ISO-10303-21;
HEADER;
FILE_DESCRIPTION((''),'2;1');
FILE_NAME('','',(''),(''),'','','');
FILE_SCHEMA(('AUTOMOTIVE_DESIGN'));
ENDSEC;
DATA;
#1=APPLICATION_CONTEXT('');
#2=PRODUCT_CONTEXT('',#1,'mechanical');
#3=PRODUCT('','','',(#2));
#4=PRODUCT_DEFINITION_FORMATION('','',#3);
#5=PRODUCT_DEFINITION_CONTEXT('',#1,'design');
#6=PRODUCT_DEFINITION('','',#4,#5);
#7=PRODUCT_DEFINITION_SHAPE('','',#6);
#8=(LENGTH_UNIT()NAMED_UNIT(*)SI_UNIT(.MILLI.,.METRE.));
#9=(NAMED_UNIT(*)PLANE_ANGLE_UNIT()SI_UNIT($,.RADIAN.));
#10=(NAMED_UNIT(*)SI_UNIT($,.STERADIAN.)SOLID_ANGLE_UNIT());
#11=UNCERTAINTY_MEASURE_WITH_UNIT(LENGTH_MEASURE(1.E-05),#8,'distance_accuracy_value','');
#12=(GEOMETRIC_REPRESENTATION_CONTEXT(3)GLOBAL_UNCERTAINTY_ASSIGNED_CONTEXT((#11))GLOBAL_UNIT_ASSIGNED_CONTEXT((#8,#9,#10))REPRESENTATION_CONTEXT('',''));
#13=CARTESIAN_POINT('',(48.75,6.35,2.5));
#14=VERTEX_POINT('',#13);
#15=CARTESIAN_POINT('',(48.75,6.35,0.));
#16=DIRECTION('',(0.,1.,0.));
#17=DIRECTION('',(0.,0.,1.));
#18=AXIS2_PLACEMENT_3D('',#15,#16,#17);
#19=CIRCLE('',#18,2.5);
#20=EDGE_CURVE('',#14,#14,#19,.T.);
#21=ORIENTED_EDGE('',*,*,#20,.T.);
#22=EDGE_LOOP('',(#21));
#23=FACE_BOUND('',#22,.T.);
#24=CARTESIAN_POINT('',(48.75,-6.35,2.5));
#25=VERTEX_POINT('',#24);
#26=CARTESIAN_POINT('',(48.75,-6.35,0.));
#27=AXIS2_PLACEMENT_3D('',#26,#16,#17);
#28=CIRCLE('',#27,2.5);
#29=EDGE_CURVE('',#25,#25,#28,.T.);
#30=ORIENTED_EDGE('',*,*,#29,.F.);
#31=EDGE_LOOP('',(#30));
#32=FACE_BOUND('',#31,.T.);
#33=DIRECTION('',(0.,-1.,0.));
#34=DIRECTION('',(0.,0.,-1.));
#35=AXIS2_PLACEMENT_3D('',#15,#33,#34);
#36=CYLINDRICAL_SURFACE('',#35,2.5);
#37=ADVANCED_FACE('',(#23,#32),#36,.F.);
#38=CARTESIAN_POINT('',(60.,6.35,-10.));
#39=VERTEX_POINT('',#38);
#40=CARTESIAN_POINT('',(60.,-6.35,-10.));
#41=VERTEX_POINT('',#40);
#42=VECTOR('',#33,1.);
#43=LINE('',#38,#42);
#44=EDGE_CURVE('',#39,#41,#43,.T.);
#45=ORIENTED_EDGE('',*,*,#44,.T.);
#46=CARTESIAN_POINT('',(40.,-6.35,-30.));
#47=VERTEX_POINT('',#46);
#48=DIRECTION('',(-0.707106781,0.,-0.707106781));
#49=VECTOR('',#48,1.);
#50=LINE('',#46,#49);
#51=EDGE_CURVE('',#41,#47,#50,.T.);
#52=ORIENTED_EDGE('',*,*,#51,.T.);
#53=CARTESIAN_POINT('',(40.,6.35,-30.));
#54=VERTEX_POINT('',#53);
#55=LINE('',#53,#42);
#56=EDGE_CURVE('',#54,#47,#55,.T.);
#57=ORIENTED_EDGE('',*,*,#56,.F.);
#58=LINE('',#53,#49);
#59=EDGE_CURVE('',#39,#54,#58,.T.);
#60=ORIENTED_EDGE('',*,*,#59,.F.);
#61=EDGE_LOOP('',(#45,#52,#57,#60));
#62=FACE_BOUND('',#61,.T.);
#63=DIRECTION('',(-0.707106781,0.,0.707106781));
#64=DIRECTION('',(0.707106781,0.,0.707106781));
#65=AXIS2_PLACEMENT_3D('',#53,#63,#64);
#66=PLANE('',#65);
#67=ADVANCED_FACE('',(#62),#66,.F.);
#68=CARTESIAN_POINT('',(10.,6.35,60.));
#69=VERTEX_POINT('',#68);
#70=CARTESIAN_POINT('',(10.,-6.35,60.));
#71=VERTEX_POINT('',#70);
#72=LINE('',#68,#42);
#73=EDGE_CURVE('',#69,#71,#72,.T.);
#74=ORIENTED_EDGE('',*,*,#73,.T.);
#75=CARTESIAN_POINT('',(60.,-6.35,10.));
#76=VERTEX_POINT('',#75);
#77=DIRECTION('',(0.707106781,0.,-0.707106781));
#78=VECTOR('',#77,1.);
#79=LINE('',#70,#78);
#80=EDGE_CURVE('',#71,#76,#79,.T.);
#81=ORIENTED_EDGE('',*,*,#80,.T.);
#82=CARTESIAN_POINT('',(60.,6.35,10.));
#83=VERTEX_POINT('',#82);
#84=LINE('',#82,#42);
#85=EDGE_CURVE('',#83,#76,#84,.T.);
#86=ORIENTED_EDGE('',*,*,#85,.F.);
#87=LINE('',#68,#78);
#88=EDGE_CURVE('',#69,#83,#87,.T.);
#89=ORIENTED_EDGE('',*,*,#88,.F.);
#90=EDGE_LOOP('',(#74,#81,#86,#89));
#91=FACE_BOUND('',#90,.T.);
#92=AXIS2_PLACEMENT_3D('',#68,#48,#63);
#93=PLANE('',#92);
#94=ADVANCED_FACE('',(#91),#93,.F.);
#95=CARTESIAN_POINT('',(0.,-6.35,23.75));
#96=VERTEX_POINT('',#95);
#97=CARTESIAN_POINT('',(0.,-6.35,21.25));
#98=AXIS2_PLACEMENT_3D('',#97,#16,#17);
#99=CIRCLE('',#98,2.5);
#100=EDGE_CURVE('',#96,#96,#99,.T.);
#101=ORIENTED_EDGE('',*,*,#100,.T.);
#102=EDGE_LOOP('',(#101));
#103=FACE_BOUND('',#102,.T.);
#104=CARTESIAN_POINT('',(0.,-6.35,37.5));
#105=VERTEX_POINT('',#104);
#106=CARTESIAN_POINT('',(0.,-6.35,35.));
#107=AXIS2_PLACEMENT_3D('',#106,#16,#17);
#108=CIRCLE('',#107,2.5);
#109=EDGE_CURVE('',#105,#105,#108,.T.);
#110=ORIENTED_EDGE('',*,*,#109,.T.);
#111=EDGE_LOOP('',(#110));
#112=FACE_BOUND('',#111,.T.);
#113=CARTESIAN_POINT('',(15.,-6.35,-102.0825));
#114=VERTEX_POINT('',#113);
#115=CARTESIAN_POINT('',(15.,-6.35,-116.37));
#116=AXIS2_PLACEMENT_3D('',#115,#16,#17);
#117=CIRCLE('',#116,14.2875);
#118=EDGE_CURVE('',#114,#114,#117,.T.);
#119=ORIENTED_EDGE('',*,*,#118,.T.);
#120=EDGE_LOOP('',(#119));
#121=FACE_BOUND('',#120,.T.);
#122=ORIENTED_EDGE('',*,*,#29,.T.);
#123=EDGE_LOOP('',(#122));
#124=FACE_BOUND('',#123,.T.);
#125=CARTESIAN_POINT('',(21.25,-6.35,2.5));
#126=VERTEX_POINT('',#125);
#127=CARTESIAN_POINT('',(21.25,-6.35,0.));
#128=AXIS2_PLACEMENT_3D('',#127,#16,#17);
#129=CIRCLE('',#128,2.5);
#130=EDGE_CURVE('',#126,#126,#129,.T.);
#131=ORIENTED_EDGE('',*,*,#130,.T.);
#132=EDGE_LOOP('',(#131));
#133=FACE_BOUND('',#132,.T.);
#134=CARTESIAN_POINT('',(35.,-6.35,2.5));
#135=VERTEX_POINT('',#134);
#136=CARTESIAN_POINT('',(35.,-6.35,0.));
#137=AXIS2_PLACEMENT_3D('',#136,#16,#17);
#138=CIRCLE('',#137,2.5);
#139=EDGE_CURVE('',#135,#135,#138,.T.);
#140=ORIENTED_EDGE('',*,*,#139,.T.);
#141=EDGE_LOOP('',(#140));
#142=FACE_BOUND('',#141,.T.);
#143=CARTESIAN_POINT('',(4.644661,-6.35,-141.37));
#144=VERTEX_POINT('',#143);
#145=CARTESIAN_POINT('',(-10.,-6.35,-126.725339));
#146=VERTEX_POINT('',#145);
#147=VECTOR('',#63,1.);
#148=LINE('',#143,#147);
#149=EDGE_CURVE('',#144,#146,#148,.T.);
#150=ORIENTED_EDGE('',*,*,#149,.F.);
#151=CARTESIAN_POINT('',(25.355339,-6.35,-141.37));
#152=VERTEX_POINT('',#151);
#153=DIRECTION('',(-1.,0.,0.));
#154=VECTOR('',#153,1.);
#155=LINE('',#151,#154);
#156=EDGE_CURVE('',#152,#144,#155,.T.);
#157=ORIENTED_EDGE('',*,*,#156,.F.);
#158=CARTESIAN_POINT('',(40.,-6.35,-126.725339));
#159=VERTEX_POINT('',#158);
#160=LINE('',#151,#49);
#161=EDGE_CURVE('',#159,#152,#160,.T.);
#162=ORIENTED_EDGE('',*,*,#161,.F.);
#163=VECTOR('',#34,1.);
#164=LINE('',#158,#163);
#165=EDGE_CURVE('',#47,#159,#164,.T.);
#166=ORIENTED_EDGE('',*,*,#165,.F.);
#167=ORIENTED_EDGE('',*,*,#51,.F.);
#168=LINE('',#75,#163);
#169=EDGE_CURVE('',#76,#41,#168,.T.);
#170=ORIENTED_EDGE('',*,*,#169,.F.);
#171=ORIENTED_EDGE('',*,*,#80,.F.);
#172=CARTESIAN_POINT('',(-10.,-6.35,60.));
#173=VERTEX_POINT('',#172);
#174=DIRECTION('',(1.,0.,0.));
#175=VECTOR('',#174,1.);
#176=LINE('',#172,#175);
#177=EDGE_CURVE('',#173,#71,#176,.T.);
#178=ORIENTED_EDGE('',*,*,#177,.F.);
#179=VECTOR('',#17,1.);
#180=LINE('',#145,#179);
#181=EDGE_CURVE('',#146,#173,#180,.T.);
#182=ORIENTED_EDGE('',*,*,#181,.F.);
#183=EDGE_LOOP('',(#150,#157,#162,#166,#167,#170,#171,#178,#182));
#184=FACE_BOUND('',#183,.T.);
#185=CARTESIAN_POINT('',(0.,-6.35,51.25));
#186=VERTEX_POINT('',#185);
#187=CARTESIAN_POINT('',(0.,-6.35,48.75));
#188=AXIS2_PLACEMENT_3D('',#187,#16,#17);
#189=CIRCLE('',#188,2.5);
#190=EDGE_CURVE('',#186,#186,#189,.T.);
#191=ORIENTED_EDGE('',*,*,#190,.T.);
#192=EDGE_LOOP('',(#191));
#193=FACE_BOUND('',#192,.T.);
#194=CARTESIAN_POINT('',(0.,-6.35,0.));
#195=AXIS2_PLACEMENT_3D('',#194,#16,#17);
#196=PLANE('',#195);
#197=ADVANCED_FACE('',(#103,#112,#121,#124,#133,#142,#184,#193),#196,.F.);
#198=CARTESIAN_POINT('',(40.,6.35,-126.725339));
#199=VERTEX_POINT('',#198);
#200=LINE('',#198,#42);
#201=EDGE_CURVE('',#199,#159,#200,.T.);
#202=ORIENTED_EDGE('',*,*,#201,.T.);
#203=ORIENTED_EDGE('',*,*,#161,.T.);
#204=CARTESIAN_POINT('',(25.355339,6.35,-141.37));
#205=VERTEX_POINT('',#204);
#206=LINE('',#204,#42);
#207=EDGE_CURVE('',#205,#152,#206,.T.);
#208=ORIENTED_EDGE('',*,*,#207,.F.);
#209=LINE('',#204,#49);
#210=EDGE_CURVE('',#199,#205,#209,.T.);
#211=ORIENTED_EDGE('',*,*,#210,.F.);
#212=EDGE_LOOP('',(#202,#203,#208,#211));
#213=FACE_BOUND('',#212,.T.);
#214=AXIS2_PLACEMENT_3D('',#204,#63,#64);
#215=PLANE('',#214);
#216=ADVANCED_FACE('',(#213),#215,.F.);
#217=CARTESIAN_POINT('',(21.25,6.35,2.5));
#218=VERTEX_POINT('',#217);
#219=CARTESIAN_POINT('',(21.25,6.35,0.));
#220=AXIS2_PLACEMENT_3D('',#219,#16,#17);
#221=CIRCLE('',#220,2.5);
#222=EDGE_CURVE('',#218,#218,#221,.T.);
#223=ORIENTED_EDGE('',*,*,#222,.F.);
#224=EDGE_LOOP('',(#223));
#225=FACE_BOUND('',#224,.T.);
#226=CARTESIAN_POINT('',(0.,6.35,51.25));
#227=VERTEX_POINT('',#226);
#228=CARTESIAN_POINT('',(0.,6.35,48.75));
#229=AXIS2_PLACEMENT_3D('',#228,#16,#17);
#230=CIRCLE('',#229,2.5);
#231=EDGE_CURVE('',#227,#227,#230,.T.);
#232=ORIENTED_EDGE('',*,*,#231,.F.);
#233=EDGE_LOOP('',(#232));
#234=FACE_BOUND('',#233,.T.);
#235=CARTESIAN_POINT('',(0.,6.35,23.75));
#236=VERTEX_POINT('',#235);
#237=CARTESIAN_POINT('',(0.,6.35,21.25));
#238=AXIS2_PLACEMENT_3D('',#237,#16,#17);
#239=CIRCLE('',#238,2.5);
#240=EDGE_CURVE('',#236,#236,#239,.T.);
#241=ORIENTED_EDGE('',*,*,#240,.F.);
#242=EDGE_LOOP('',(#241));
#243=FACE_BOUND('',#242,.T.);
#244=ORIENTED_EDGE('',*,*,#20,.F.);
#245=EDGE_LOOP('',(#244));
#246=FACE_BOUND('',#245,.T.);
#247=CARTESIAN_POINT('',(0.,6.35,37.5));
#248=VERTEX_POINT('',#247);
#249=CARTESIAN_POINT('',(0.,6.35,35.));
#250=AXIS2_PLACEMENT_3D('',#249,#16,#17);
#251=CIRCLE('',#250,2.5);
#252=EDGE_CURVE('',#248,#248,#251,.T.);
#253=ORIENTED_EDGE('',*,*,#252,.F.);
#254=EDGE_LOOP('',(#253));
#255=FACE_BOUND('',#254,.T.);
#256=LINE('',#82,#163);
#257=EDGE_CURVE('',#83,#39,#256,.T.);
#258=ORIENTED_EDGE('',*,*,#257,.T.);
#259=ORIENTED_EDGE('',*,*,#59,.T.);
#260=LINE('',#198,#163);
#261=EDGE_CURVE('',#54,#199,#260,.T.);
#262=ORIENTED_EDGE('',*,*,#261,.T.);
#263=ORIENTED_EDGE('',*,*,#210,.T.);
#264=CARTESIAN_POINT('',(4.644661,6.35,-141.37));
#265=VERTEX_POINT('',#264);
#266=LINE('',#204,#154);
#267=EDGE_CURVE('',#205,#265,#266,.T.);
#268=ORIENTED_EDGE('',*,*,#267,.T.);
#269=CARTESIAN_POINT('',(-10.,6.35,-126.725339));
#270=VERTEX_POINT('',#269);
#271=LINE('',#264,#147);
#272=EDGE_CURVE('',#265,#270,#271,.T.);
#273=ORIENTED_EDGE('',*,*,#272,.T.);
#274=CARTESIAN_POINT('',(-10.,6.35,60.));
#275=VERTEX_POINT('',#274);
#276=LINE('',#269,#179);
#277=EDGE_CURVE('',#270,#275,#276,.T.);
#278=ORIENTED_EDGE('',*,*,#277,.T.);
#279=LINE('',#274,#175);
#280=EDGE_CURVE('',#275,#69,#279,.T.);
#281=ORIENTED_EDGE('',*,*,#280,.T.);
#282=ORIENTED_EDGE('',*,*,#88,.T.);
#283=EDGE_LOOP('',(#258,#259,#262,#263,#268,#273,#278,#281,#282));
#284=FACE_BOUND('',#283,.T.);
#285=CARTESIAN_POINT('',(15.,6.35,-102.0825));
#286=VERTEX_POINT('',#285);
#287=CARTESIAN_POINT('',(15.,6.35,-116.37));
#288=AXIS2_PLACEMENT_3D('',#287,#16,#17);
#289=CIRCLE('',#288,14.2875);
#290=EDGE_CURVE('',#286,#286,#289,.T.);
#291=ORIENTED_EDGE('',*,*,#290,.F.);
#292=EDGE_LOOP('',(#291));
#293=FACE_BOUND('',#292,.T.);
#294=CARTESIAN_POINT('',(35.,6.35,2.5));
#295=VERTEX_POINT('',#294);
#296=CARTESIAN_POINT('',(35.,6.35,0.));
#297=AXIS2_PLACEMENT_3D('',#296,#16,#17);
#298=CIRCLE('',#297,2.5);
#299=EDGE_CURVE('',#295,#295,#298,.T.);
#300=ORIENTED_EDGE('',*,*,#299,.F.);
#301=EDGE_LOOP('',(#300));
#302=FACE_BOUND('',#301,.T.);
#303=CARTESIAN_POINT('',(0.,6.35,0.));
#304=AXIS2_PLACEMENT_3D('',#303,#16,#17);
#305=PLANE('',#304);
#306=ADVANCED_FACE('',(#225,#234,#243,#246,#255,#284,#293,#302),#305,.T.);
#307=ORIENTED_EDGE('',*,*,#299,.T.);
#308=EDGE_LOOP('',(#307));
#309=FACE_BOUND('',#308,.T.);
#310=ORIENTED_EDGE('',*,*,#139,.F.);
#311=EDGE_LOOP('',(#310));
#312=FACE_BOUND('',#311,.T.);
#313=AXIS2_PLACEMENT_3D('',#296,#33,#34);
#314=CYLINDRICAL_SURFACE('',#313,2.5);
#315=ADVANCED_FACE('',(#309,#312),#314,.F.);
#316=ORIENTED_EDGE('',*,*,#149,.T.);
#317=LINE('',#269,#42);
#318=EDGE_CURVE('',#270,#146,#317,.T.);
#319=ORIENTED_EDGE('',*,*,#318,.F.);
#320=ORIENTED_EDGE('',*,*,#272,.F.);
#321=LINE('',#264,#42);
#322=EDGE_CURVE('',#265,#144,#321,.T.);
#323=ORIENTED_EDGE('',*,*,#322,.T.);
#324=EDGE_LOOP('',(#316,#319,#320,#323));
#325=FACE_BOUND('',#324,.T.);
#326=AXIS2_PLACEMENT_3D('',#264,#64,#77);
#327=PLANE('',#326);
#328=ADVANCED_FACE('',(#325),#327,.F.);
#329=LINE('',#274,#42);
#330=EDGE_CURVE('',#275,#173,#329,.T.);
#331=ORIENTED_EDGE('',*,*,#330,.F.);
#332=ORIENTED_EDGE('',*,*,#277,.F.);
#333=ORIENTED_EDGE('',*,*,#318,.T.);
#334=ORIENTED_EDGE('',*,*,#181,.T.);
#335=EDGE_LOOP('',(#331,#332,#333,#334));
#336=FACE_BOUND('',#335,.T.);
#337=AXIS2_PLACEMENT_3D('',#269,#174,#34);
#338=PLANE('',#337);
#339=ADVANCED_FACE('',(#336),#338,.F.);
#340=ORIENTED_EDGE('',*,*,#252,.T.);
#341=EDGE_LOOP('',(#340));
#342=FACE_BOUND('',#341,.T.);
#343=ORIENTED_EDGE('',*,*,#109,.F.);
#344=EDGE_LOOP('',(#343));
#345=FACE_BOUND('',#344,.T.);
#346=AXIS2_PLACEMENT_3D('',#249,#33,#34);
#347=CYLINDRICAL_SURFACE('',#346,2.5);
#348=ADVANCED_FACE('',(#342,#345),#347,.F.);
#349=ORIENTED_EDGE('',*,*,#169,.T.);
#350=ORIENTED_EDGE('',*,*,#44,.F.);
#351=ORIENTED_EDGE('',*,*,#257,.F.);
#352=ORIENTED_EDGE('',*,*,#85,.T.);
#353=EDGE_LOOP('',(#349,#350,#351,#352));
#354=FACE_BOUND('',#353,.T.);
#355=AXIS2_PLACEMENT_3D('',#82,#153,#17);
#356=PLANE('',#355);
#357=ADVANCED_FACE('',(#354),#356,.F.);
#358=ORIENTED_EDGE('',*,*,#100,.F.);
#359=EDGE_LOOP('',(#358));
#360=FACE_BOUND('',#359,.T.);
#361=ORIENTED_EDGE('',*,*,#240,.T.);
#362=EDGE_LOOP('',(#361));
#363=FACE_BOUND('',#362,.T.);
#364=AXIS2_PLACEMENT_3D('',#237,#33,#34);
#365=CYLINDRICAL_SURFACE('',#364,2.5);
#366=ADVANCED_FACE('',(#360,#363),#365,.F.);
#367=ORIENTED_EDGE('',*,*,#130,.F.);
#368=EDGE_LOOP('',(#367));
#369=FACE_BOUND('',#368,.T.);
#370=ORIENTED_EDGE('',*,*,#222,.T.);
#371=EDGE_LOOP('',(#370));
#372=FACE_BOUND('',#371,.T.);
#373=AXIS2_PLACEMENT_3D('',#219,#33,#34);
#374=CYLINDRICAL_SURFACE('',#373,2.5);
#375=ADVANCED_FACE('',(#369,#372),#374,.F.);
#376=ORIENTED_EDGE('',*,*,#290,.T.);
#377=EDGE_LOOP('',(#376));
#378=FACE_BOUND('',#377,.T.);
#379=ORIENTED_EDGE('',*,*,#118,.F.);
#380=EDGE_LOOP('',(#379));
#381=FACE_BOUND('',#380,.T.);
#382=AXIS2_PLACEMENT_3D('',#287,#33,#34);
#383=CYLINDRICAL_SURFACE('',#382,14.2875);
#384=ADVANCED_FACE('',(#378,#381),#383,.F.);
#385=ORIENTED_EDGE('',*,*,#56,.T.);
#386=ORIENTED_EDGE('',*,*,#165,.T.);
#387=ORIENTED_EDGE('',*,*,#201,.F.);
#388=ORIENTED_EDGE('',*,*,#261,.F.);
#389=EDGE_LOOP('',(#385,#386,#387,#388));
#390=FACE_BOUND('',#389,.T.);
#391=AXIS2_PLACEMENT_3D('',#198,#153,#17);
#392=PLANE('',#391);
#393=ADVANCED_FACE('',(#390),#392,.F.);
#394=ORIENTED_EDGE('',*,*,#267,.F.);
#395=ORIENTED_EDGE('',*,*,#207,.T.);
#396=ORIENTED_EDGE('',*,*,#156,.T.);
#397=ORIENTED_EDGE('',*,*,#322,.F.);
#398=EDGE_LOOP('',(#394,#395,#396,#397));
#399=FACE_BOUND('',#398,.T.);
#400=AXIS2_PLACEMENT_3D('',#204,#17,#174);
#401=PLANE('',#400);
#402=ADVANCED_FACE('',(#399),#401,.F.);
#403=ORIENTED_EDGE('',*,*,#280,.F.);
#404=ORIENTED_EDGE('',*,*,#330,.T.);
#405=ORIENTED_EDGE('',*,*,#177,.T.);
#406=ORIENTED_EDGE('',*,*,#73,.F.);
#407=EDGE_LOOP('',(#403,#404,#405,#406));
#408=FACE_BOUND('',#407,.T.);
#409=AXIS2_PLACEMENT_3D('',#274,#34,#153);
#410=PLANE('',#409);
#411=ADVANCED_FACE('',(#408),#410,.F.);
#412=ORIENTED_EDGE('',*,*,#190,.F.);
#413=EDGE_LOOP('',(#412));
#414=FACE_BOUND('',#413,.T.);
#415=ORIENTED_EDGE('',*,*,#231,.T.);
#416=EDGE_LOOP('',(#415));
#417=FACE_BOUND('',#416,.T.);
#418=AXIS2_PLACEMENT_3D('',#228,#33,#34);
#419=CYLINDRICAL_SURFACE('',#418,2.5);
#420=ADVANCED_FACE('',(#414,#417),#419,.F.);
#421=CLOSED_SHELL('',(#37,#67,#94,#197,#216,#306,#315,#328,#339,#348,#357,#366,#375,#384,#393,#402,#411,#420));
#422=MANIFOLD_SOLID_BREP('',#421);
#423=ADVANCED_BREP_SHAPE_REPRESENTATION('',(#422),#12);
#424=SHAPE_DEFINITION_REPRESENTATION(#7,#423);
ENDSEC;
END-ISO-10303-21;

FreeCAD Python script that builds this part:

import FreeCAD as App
import Part
import Sketcher

V = App.Vector
Q = App.Units.Quantity

doc = App.newDocument("Part")
params = doc.addObject("Spreadsheet::Sheet", "Params")
for row, (alias, value) in enumerate([
    ("sketch1_diameter", "5 mm"),
    ("sketch1_width", "20 mm"),
    ("pad1_length", "12.7 mm"),
], start=1):
    params.set(f"A{row}", alias)
    params.set(f"B{row}", "=" + value)
    params.setAlias(f"B{row}", alias)

body = doc.addObject("PartDesign::Body", "Body")

# Sketch on XZ plane
sketch1 = body.newObject("Sketcher::SketchObject", "Sketch")
sketch1.AttachmentSupport = (doc.getObject("XZ_Plane"), [""])
sketch1.MapMode = "FlatFace"
sketch1.addGeometry([
    Part.LineSegment(V(-10, 60, 0), V(10, 60, 0)),  # 0
    Part.LineSegment(V(10, 60, 0), V(60, 10, 0)),  # 1
    Part.LineSegment(V(60, 10, 0), V(60, -10, 0)),  # 2
    Part.LineSegment(V(60, -10, 0), V(40, -30, 0)),  # 3
    Part.LineSegment(V(40, -30, 0), V(40, -126.7, 0)),  # 4
    Part.LineSegment(V(40, -126.7, 0), V(25.4, -141.4, 0)),  # 5
    Part.LineSegment(V(25.4, -141.4, 0), V(4.6, -141.4, 0)),  # 6
    Part.LineSegment(V(4.6, -141.4, 0), V(-10, -126.7, 0)),  # 7
    Part.LineSegment(V(-10, -126.7, 0), V(-10, 60, 0)),  # 8
    Part.Circle(V(0, 48.8, 0), V(0, 0, 1), 2.5),  # 9
    Part.Circle(V(0, 35, 0), V(0, 0, 1), 2.5),  # 10
    Part.Circle(V(0, 21.2, 0), V(0, 0, 1), 2.5),  # 11
    Part.Circle(V(21.2, 0, 0), V(0, 0, 1), 2.5),  # 12
    Part.Circle(V(35, 0, 0), V(0, 0, 1), 2.5),  # 13
    Part.Circle(V(48.8, 0, 0), V(0, 0, 1), 2.5),  # 14
    Part.Circle(V(15, -116.4, 0), V(0, 0, 1), 14.3),  # 15
], False)
sketch1.addConstraint([
    Sketcher.Constraint("Coincident", 0, 2, 1, 1),
    Sketcher.Constraint("Coincident", 1, 2, 2, 1),
    Sketcher.Constraint("Coincident", 2, 2, 3, 1),
    Sketcher.Constraint("Coincident", 3, 2, 4, 1),
    Sketcher.Constraint("Coincident", 4, 2, 5, 1),
    Sketcher.Constraint("Coincident", 5, 2, 6, 1),
    Sketcher.Constraint("Coincident", 6, 2, 7, 1),
    Sketcher.Constraint("Coincident", 7, 2, 8, 1),
    Sketcher.Constraint("Coincident", 8, 2, 0, 1),
    Sketcher.Constraint("Horizontal", 0),
    Sketcher.Constraint("Vertical", 2),
    Sketcher.Constraint("Vertical", 4),
    Sketcher.Constraint("Horizontal", 6),
    Sketcher.Constraint("Vertical", 8),
    Sketcher.Constraint("Equal", 9, 10),
    Sketcher.Constraint("Equal", 10, 11),
    Sketcher.Constraint("Equal", 11, 12),
    Sketcher.Constraint("Equal", 12, 13),
    Sketcher.Constraint("Equal", 13, 14),
    Sketcher.Constraint("PointOnObject", 9, 3, -2),
    Sketcher.Constraint("PointOnObject", 10, 3, -2),
    Sketcher.Constraint("PointOnObject", 11, 3, -2),
    Sketcher.Constraint("PointOnObject", 12, 3, -1),
    Sketcher.Constraint("PointOnObject", 13, 3, -1),
    Sketcher.Constraint("PointOnObject", 14, 3, -1),
    Sketcher.Constraint("Perpendicular", 1, 3),
    Sketcher.Constraint("Parallel", 3, 5),
    Sketcher.Constraint("Perpendicular", 5, 7),
    Sketcher.Constraint("Horizontal", 4, 2, 7, 2),
    Sketcher.Constraint("Equal", 0, 2),
    Sketcher.Constraint("Equal", 5, 7),
    Sketcher.Constraint("Diameter", 9, Q("5 mm")),
    Sketcher.Constraint("DistanceX", 0, 1, 0, 2, Q("20 mm")),
    Sketcher.Constraint("Diameter", 15, Q("28.575 mm")),
    Sketcher.Constraint("DistanceY", -1, 1, 10, 3, Q("35 mm")),
    Sketcher.Constraint("DistanceX", -1, 1, 13, 3, Q("35 mm")),
    Sketcher.Constraint("DistanceX", -1, 1, 15, 3, Q("15 mm")),
    Sketcher.Constraint("DistanceX", -1, 1, 0, 2, Q("10 mm")),
    Sketcher.Constraint("DistanceY", -1, 1, 0, 2, Q("60 mm")),
    Sketcher.Constraint("DistanceX", -1, 1, 1, 2, Q("60 mm")),
    Sketcher.Constraint("DistanceX", -1, 1, 3, 2, Q("40 mm")),
    Sketcher.Constraint("DistanceY", 5, 2, 15, 3, Q("25 mm")),
    Sketcher.Constraint("DistanceY", 11, 3, 9, 3, Q("27.5 mm")),
    Sketcher.Constraint("DistanceX", 12, 3, 14, 3, Q("27.5 mm")),
    Sketcher.Constraint("DistanceY", -1, 1, 9, 3, Q("48.75 mm")),
    Sketcher.Constraint("DistanceX", -1, 1, 12, 3, Q("21.25 mm")),
    Sketcher.Constraint("DistanceY", 15, 3, -1, 1, Q("116.37 mm")),
    Sketcher.Constraint("DistanceX", 6, 2, 6, 1, Q("20.710678 mm")),
])
sketch1.setExpression("Constraints[31]", "Params.sketch1_diameter")
sketch1.setExpression("Constraints[32]", "Params.sketch1_width")
pad1 = body.newObject("PartDesign::Pad", "Pad")
pad1.Profile = sketch1
pad1.setExpression("Length", "Params.pad1_length")
pad1.Midplane = True

doc.recompute()
